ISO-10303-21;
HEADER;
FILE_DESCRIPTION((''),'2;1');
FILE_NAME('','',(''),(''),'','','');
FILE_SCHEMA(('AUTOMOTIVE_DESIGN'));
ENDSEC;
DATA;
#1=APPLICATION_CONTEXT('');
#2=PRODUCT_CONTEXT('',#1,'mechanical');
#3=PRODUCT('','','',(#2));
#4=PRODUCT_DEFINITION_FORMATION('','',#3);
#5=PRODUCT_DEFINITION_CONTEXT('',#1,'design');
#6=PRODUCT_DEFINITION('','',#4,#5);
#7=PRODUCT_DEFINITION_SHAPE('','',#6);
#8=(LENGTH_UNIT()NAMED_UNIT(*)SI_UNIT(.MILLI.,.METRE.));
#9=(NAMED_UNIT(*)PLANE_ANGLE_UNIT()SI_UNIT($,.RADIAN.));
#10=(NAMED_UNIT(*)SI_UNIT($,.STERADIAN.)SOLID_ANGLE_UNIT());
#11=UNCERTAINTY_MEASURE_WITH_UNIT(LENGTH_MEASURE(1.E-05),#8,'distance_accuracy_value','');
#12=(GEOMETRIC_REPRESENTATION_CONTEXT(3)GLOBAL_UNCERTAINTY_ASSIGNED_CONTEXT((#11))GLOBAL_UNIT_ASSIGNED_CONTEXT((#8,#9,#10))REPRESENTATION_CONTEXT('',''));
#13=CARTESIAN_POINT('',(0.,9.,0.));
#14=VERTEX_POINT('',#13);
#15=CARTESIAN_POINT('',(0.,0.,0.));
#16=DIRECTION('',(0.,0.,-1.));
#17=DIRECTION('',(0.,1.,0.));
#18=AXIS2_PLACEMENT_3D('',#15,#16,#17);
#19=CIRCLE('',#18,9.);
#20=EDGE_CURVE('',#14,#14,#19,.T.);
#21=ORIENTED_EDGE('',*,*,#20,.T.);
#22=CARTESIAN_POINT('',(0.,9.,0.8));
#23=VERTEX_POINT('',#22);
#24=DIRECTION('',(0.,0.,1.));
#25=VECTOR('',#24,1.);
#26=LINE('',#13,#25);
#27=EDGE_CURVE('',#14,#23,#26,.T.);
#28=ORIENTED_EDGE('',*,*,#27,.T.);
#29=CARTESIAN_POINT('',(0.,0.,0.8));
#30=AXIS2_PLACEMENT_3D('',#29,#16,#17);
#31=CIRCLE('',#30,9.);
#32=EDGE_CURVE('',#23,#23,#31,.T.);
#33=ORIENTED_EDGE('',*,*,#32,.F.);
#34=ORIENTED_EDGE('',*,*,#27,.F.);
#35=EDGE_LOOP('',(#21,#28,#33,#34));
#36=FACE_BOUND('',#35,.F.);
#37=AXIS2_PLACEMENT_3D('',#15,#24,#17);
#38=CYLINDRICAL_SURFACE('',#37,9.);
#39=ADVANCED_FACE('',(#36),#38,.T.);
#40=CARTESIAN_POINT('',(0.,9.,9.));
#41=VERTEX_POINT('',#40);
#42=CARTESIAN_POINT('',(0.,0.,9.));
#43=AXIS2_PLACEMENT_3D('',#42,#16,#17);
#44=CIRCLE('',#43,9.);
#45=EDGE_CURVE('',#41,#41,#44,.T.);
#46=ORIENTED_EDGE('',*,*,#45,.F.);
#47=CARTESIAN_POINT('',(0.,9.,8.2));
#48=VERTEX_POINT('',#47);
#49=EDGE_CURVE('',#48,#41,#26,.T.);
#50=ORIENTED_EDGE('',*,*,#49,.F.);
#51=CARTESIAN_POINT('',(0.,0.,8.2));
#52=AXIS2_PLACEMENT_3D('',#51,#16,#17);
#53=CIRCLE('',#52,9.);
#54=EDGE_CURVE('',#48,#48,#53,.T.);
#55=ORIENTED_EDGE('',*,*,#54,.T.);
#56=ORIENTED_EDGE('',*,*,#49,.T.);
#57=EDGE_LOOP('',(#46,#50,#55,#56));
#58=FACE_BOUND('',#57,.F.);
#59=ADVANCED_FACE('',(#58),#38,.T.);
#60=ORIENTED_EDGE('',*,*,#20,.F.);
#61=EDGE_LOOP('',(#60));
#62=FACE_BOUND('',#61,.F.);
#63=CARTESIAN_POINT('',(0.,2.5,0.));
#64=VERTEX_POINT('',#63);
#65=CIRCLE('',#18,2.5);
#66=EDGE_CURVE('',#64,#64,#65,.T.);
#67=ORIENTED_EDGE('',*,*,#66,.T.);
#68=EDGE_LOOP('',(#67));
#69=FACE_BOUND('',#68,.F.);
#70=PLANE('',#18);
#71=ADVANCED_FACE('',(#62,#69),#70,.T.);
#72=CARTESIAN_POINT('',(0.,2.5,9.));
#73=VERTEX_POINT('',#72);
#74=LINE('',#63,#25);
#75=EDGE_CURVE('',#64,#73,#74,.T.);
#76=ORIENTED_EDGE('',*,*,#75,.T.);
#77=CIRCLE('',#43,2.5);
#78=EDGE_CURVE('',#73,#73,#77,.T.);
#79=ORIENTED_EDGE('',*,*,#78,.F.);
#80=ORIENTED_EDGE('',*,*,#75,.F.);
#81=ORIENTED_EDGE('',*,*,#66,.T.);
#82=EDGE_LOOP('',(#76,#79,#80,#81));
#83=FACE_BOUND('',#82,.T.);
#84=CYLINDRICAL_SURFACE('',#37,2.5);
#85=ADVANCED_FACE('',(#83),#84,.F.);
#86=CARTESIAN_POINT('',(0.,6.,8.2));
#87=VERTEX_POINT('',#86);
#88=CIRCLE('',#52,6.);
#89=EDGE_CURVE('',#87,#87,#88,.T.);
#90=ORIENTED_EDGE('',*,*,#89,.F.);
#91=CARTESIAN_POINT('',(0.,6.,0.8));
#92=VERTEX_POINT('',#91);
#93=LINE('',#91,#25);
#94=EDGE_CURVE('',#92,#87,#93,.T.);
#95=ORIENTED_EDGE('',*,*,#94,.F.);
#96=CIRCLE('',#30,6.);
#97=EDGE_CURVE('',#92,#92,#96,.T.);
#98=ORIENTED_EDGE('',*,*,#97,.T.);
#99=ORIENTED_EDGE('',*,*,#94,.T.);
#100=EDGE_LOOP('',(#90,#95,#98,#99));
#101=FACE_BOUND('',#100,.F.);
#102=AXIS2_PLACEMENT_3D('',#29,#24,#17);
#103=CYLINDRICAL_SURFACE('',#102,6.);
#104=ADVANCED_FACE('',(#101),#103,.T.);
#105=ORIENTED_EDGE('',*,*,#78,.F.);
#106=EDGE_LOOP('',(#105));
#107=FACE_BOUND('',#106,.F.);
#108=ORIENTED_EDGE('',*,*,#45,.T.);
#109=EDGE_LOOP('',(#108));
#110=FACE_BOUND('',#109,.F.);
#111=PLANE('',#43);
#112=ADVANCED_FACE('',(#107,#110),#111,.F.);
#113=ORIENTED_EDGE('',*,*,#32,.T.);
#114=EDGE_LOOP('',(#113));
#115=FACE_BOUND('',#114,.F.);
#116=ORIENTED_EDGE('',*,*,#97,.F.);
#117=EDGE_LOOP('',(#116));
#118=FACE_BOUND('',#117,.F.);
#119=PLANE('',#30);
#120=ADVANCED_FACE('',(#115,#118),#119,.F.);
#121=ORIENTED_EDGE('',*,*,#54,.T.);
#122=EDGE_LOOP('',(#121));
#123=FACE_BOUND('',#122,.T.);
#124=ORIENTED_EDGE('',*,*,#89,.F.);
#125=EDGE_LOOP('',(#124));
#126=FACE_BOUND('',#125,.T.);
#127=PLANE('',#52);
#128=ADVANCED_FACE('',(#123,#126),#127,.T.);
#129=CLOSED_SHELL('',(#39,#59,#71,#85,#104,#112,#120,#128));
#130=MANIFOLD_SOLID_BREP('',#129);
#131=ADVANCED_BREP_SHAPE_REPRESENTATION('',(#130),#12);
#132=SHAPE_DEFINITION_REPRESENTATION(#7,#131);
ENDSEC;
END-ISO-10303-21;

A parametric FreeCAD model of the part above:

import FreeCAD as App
import Part
import Sketcher
from FreeCAD import Vector
Q = App.Units.Quantity


def add_polygon(sketch, points):
    """Adds a closed chain of lines whose ends are joined by coincident constraints."""
    first, n = sketch.GeometryCount, len(points)
    for a, b in zip(points, points[1:] + points[:1]):
        sketch.addGeometry(Part.LineSegment(App.Vector(*a, 0), App.Vector(*b, 0)), False)
    for i in range(n):
        sketch.addConstraint(Sketcher.Constraint("Coincident", first + i, 2, first + (i + 1) % n, 1))

doc = App.newDocument("Part")
body = doc.addObject("PartDesign::Body", "Body")

sketch1 = doc.addObject("Sketcher::SketchObject", "Sketch")
body.addObject(sketch1)
sketch1.AttachmentSupport = (doc.YZ_Plane, [""])
sketch1.MapMode = "FlatFace"
add_polygon(sketch1, [(2.5, 0), (9, 0), (9, 0.8), (6, 0.8), (6, 8.2), (9, 8.2), (9, 9), (2.5, 9)])
sketch1.addConstraint([
    Sketcher.Constraint("Horizontal", 0),
    Sketcher.Constraint("Vertical", 1),
    Sketcher.Constraint("Horizontal", 2),
    Sketcher.Constraint("Vertical", 3),
    Sketcher.Constraint("Horizontal", 4),
    Sketcher.Constraint("Vertical", 5),
    Sketcher.Constraint("Horizontal", 6),
    Sketcher.Constraint("Vertical", 7),
    Sketcher.Constraint("PointOnObject", 0, 2, -1),
    Sketcher.Constraint("Vertical", 1, 2, 4, 2),
    Sketcher.Constraint("Equal", 1, 5),
    Sketcher.Constraint("DistanceY", 7, 2, 7, 1, Q("9 mm")),
    Sketcher.Constraint("DistanceY", 1, 1, 1, 2, Q("0.8 mm")),
    Sketcher.Constraint("DistanceX", -1, 1, 0, 2, Q("9 mm")),
    Sketcher.Constraint("DistanceX", -1, 1, 2, 2, Q("6 mm")),
    Sketcher.Constraint("DistanceX", -1, 1, 6, 2, Q("2.5 mm")),
])
revolution = doc.addObject("PartDesign::Revolution", "Revolution")
body.addObject(revolution)
revolution.Profile = sketch1
revolution.ReferenceAxis = (sketch1, ["V_Axis"])
revolution.Angle = 360

doc.recompute()
